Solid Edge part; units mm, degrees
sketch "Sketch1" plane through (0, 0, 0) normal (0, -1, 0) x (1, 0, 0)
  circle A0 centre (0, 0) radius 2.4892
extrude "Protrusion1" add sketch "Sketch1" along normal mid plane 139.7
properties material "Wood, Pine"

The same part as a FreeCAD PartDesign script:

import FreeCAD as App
import Part
import Sketcher
Q = App.Units.Quantity

doc = App.newDocument("Part")
body = doc.addObject("PartDesign::Body", "Body")

sketch1 = body.newObject("Sketcher::SketchObject", "Sketch")
sketch1.AttachmentSupport = (doc.getObject("XZ_Plane"), [""])
sketch1.MapMode = "FlatFace"
sketch1.addGeometry(Part.Circle(App.Vector(0, 0, 0), App.Vector(0, 0, 1), 2.5), False)
sketch1.addConstraint(Sketcher.Constraint("Coincident", 0, 3, -1, 1))
sketch1.addConstraint(Sketcher.Constraint("Diameter", 0, Q("0.196 in")))
pad1 = body.newObject("PartDesign::Pad", "Pad")
pad1.Profile = sketch1
pad1.Length = Q("5.5 in")
pad1.Midplane = True

doc.recompute()
